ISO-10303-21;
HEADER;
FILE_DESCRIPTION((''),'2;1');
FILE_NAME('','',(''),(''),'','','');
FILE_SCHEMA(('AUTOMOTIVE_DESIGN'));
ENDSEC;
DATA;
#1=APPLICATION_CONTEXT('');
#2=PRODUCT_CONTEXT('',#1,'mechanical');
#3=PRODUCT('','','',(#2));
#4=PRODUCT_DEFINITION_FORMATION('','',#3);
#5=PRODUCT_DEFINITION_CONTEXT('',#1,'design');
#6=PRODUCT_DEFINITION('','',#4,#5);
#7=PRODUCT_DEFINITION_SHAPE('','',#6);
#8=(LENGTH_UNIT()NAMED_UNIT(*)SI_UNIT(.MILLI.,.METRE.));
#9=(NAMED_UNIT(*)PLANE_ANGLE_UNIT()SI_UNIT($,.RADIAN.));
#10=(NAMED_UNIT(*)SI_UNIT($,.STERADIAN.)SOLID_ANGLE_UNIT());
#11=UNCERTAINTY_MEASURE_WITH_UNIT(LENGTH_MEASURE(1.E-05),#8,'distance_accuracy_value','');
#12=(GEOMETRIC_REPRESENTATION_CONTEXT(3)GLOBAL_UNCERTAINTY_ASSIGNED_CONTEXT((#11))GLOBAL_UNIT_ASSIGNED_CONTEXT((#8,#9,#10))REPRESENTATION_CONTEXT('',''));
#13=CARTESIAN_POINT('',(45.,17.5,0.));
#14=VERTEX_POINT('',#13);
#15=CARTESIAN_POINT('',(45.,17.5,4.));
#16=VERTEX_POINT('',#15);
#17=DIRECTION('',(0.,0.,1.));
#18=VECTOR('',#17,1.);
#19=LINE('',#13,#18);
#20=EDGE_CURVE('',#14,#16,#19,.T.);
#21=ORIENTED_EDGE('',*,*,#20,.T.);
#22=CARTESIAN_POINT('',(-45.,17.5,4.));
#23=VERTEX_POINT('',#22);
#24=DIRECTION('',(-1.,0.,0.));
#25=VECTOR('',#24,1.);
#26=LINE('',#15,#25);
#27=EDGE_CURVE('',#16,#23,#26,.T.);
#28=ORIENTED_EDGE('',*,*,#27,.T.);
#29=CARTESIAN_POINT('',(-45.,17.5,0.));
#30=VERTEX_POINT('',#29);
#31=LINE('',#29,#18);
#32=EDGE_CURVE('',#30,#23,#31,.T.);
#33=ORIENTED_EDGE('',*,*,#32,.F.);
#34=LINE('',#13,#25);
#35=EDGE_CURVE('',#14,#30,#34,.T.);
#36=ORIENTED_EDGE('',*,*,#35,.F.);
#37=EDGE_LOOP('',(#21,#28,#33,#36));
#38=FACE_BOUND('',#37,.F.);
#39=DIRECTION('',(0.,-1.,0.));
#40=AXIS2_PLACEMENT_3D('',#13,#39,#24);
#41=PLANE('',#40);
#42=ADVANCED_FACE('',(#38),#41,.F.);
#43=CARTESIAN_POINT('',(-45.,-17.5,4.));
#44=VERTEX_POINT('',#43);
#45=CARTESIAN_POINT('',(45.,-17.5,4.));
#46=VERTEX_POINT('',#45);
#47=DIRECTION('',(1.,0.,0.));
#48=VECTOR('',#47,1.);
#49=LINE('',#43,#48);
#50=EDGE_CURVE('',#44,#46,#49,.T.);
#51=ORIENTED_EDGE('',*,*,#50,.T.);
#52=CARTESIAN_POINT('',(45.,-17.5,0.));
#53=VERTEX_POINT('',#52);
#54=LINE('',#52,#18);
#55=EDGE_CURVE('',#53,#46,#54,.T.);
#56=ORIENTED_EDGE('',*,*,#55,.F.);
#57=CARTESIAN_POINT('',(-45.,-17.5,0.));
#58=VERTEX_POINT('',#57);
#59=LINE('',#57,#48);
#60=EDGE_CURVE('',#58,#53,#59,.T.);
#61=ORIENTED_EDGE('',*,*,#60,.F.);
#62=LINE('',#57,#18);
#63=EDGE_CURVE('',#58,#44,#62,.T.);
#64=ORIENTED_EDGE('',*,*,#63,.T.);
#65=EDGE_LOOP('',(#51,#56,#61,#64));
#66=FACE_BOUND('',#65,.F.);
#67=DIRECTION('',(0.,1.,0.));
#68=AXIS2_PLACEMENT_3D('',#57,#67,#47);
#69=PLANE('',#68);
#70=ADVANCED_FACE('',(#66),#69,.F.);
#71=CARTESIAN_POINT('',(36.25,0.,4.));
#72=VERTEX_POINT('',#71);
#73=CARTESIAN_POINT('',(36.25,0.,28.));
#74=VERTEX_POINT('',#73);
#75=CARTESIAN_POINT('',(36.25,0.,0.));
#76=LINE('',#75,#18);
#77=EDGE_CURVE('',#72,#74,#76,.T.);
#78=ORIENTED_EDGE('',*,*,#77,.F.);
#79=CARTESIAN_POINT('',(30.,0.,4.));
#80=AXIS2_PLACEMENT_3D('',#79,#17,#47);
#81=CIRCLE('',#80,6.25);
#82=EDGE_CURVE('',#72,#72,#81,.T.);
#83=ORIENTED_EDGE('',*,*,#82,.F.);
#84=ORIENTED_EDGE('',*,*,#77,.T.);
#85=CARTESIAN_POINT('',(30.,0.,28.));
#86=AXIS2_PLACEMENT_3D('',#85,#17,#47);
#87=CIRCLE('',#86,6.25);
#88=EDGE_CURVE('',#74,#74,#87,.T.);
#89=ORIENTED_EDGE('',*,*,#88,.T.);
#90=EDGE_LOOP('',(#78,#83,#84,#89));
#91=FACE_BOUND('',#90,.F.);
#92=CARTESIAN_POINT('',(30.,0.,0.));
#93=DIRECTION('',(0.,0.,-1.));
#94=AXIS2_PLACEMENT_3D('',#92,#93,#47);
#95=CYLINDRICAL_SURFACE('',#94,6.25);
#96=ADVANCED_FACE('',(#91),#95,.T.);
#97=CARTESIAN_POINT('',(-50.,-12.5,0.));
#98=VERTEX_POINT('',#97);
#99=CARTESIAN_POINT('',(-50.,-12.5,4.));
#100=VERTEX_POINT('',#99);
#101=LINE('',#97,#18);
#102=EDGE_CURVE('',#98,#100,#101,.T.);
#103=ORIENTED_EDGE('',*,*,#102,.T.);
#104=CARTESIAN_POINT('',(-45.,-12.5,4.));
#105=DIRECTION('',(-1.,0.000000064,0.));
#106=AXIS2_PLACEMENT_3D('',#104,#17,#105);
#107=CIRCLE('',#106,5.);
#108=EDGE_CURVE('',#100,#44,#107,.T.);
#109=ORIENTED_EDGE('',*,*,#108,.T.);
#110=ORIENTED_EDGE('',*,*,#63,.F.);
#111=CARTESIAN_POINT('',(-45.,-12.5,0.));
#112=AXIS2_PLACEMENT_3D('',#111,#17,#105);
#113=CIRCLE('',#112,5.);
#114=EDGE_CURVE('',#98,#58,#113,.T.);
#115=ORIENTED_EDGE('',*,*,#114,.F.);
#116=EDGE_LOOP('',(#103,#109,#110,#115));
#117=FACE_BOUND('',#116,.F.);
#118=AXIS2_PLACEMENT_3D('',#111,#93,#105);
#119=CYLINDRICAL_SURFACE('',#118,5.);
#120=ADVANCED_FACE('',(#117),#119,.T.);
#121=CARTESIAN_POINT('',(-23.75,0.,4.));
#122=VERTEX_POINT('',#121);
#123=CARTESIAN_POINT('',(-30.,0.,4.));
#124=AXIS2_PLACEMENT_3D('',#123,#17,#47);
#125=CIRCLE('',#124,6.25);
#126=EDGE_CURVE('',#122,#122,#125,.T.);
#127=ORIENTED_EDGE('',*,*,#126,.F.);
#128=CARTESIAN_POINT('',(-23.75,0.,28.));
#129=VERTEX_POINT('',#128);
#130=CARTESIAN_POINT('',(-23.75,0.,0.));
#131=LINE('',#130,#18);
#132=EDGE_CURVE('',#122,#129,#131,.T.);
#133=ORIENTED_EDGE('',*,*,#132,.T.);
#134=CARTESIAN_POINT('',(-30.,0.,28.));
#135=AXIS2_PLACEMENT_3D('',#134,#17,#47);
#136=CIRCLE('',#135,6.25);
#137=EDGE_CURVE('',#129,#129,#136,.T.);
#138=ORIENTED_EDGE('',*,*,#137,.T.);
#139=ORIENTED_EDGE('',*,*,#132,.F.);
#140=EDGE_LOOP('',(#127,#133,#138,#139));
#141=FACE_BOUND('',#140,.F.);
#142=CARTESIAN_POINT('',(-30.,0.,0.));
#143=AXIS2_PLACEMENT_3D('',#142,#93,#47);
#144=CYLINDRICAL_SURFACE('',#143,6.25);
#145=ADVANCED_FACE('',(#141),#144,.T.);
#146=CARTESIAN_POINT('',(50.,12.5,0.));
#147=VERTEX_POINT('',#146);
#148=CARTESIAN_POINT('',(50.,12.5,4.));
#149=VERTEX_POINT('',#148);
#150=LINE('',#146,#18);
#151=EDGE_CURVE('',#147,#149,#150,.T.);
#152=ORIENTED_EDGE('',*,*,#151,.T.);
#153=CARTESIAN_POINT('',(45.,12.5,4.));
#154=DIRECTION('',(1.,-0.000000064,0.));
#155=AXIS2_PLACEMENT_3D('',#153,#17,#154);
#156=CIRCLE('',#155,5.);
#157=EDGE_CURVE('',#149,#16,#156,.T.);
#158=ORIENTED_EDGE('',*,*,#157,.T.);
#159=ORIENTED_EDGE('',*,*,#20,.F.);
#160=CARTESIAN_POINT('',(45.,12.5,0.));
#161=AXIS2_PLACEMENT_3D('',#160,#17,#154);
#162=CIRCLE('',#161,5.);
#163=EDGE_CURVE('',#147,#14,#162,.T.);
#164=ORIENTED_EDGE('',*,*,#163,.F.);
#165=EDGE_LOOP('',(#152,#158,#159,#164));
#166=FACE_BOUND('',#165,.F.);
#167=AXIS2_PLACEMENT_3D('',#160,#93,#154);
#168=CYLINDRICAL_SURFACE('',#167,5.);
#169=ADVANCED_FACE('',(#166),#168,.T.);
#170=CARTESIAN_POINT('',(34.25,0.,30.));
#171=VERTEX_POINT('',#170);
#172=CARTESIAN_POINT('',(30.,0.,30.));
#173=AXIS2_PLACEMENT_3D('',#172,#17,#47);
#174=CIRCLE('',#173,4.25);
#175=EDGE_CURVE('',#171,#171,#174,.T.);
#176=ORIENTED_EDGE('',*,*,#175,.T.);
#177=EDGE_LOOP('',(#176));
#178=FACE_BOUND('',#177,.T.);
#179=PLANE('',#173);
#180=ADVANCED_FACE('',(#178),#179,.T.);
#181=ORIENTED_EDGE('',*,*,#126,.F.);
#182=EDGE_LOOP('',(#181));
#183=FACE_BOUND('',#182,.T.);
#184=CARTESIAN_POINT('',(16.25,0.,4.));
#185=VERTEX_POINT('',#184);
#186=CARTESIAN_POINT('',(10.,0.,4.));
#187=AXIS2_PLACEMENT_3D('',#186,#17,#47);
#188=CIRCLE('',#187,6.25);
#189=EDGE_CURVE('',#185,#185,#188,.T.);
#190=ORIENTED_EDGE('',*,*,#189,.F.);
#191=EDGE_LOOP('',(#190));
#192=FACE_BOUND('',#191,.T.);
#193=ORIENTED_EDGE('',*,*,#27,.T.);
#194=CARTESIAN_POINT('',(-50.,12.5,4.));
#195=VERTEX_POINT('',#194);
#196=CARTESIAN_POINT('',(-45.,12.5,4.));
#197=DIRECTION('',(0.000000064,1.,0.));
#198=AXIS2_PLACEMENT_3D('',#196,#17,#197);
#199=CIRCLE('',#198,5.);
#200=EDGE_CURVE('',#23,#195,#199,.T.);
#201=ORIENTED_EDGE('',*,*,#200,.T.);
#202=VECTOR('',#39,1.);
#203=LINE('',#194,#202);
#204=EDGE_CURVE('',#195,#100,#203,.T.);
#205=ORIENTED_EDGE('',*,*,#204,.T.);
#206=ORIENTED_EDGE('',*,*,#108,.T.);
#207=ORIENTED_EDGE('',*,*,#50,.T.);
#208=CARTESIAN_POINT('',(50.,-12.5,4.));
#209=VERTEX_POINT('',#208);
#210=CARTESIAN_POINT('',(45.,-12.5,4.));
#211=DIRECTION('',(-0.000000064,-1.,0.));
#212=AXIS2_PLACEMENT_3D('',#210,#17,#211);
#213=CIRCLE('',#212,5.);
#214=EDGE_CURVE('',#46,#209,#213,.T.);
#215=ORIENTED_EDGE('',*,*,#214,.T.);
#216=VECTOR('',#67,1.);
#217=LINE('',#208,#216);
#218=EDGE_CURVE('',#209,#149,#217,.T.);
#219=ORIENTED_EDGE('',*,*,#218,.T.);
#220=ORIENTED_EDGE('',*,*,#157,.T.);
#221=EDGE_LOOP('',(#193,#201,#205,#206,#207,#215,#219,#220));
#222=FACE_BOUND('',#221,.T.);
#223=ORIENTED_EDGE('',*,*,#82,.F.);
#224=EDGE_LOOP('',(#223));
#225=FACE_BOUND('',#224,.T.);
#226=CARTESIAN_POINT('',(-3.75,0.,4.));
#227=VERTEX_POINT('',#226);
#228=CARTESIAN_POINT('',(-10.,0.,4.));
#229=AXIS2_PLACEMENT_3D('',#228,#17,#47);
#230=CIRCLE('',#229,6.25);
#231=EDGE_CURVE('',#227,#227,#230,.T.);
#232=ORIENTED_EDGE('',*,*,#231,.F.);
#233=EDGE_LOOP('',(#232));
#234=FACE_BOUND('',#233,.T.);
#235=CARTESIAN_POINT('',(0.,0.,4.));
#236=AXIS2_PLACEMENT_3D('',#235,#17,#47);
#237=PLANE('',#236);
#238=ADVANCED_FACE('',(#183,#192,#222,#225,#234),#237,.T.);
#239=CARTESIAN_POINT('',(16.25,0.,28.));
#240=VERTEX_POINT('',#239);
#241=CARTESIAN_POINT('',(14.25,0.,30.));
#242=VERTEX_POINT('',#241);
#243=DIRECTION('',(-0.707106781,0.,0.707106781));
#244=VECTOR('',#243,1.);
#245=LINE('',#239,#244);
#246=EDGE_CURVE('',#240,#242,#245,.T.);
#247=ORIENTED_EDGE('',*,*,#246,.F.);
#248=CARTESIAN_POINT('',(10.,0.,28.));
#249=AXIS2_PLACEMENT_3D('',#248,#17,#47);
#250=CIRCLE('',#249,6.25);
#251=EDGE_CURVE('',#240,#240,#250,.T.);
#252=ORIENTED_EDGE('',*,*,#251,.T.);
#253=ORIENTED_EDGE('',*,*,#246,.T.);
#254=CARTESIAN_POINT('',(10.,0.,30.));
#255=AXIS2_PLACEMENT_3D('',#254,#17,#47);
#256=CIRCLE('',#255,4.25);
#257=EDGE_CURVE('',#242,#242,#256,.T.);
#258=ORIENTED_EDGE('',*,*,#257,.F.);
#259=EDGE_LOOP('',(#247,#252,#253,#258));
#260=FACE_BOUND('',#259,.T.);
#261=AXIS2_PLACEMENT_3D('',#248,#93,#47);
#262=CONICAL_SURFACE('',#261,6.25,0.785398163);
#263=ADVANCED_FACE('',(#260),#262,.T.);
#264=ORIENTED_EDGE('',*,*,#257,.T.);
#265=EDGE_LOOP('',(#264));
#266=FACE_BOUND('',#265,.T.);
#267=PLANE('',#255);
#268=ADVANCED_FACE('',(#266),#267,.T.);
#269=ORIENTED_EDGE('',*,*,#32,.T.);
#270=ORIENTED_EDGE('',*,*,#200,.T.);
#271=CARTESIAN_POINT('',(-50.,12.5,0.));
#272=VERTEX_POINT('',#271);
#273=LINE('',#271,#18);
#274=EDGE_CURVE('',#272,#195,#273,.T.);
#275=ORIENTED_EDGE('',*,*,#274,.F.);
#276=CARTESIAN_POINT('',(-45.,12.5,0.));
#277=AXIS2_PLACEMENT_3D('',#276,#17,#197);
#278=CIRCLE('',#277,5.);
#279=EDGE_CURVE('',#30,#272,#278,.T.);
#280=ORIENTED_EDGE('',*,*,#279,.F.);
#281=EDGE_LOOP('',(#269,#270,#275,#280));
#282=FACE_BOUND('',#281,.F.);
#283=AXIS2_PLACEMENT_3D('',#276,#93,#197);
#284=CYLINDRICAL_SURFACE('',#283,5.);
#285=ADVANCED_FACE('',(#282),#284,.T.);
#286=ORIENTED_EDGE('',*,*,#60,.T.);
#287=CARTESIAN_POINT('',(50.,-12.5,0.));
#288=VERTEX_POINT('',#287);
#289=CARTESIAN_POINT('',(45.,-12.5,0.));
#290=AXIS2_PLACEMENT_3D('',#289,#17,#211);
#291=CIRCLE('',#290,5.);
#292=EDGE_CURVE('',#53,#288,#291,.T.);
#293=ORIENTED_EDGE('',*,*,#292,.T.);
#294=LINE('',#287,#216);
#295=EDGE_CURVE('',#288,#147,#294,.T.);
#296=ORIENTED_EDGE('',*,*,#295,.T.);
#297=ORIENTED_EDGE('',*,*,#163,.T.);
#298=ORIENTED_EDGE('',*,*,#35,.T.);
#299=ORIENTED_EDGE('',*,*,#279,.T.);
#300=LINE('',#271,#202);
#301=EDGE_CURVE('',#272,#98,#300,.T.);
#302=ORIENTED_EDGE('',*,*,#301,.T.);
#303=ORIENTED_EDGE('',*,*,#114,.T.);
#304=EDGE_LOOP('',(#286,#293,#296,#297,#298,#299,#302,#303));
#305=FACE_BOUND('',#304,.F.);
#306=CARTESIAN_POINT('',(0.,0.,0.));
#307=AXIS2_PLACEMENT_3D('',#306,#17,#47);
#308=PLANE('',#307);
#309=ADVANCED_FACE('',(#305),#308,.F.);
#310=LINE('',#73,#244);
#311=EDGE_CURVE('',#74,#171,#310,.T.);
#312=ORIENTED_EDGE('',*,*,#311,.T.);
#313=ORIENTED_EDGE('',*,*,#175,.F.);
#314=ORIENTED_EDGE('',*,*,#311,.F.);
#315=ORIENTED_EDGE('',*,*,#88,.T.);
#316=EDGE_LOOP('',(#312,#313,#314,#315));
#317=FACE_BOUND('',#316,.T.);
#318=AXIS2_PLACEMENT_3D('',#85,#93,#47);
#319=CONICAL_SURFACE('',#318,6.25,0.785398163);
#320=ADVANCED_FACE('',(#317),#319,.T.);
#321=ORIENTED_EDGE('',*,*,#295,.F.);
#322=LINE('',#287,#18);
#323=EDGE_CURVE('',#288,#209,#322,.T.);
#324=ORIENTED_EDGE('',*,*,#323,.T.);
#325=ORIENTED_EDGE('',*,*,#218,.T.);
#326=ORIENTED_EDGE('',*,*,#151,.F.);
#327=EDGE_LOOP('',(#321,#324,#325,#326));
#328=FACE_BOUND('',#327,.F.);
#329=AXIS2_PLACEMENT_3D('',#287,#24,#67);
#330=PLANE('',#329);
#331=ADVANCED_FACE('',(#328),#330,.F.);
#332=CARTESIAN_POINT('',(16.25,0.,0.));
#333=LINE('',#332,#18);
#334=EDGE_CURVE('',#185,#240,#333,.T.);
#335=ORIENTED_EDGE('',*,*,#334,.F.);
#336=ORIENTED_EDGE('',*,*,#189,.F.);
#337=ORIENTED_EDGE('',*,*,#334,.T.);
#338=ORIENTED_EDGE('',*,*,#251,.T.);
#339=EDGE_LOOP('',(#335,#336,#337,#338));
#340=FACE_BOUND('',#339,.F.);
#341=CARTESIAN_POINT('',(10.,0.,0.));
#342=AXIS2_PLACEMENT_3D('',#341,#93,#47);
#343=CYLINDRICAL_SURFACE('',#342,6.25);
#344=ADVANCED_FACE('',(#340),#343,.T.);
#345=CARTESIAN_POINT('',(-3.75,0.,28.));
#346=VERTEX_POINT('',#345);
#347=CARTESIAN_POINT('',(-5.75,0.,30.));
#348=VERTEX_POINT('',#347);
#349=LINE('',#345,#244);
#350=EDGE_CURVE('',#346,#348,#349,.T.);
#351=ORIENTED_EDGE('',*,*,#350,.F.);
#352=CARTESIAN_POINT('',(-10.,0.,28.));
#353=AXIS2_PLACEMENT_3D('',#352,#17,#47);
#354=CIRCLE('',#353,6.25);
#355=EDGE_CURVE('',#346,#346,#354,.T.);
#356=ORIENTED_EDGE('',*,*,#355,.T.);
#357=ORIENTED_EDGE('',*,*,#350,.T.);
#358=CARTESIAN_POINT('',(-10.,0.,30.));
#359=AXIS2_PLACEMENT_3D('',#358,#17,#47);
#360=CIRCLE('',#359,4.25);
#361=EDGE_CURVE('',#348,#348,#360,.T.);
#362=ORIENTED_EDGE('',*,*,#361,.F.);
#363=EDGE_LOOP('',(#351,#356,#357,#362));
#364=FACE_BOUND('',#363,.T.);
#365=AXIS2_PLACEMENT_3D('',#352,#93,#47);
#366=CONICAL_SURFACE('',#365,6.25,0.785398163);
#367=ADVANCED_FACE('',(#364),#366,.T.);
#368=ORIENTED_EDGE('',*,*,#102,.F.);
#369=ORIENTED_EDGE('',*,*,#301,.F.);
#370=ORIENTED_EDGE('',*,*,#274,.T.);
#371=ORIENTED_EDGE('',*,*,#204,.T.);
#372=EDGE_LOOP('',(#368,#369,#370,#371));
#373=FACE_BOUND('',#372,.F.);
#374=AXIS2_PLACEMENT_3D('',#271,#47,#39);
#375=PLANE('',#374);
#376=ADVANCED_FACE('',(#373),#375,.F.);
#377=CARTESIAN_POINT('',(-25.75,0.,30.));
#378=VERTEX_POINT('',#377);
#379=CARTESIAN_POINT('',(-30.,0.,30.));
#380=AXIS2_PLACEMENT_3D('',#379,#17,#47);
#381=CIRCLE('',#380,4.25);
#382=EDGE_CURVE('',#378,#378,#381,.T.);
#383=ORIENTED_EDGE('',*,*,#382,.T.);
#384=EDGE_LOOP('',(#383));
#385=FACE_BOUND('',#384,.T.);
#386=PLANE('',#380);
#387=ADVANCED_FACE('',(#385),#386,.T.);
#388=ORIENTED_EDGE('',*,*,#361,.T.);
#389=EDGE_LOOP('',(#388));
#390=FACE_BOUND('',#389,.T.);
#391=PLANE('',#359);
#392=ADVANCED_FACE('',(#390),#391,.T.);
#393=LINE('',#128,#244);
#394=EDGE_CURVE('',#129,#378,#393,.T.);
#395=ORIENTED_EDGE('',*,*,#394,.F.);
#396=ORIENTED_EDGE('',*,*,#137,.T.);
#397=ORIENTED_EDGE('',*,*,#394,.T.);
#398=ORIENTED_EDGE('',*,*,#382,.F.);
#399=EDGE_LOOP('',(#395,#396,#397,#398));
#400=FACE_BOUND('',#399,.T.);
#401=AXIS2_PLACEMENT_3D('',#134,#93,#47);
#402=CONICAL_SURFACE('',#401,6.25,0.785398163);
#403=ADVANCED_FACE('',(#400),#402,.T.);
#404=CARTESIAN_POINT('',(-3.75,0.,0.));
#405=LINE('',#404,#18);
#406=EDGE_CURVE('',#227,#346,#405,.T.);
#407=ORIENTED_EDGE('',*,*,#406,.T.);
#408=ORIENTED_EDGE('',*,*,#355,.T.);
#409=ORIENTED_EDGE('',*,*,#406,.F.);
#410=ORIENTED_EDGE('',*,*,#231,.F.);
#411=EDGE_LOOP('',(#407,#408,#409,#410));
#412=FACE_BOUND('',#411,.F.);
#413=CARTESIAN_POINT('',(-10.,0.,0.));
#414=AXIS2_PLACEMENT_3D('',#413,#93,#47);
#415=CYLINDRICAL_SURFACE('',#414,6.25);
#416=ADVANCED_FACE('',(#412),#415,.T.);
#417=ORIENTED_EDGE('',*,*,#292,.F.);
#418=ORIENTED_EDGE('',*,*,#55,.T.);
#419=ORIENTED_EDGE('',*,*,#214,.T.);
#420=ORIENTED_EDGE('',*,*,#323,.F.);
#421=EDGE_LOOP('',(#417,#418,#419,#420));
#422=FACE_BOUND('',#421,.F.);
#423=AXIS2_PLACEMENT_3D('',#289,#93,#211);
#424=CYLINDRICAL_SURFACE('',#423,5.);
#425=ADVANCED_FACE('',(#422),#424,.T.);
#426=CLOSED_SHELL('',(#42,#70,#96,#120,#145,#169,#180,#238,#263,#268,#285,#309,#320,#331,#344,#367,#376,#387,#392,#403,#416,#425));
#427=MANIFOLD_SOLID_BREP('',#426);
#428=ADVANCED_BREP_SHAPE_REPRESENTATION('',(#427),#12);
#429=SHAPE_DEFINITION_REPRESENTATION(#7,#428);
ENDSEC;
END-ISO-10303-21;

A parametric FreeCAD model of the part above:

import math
import FreeCAD as App
import Part
import Sketcher


def edges_at(feature, points):
    """Names of the edges that pass closest to the given points."""
    edges = feature.Shape.Edges
    near = lambda p: min(range(len(edges)), key=lambda i: edges[i].distToShape(Part.Vertex(*p))[0])
    return sorted({f"Edge{near(p) + 1}" for p in points})

doc = App.newDocument("Part")
body = doc.addObject("PartDesign::Body", "Body")
body.AllowCompound = True

sketch1 = body.newObject("Sketcher::SketchObject", "Sketch")
sketch1.AttachmentSupport = (doc.getObject("XY_Plane"), [""])
sketch1.MapMode = "FlatFace"
sketch1.addGeometry([
    Part.Circle(App.Vector(-30, 0, 0), App.Vector(0, 0, 1), 6),
    Part.Circle(App.Vector(-10, 0, 0), App.Vector(0, 0, 1), 6),
    Part.Circle(App.Vector(10, 0, 0), App.Vector(0, 0, 1), 6),
    Part.Circle(App.Vector(30, 0, 0), App.Vector(0, 0, 1), 6),
], False)
sketch1.addConstraint([
    Sketcher.Constraint("Equal", 0, 1),
    Sketcher.Constraint("Equal", 1, 2),
    Sketcher.Constraint("Equal", 2, 3),
    Sketcher.Constraint("Symmetric", 1, 3, 2, 3, -1, 1),
    Sketcher.Constraint("Symmetric", 0, 3, 3, 3, -1, 1),
    Sketcher.Constraint("PointOnObject", 0, 3, -1),
    Sketcher.Constraint("PointOnObject", 1, 3, -1),
    Sketcher.Constraint("Diameter", 0, 12.5),
    Sketcher.Constraint("DistanceX", 0, 3, -1, 1, 30.0),
    Sketcher.Constraint("DistanceX", 1, 3, -1, 1, 10.0),
])
pad1 = body.newObject("PartDesign::Pad", "Pad")
pad1.Profile = sketch1
pad1.Length = 30

sketch2 = body.newObject("Sketcher::SketchObject", "Sketch001")
sketch2.AttachmentSupport = (doc.getObject("XY_Plane"), [""])
sketch2.MapMode = "FlatFace"
sketch2.addGeometry([
    Part.ArcOfCircle(Part.Circle(App.Vector(45, 12.5, 0), App.Vector(0, 0, 1), 5), math.radians(0), math.radians(90)),
    Part.LineSegment(App.Vector(45, 17.5, 0), App.Vector(-45, 17.5, 0)),
    Part.ArcOfCircle(Part.Circle(App.Vector(-45, 12.5, 0), App.Vector(0, 0, 1), 5), math.radians(90), math.radians(180)),
    Part.LineSegment(App.Vector(-50, 12.5, 0), App.Vector(-50, -12.5, 0)),
    Part.ArcOfCircle(Part.Circle(App.Vector(-45, -12.5, 0), App.Vector(0, 0, 1), 5), math.radians(180), math.radians(270)),
    Part.LineSegment(App.Vector(-45, -17.5, 0), App.Vector(45, -17.5, 0)),
    Part.ArcOfCircle(Part.Circle(App.Vector(45, -12.5, 0), App.Vector(0, 0, 1), 5), math.radians(-90), math.radians(0)),
    Part.LineSegment(App.Vector(50, -12.5, 0), App.Vector(50, 12.5, 0)),
    Part.Circle(App.Vector(-30, 0, 0), App.Vector(0, 0, 1), 6.2),
    Part.Circle(App.Vector(-10, 0, 0), App.Vector(0, 0, 1), 6.2),
    Part.Circle(App.Vector(10, 0, 0), App.Vector(0, 0, 1), 6.2),
    Part.Circle(App.Vector(30, 0, 0), App.Vector(0, 0, 1), 6.2),
], False)
sketch2.addConstraint([
    Sketcher.Constraint("Tangent", 0, 2, 1, 1),
    Sketcher.Constraint("Tangent", 1, 2, 2, 1),
    Sketcher.Constraint("Tangent", 2, 2, 3, 1),
    Sketcher.Constraint("Tangent", 3, 2, 4, 1),
    Sketcher.Constraint("Tangent", 4, 2, 5, 1),
    Sketcher.Constraint("Tangent", 5, 2, 6, 1),
    Sketcher.Constraint("Tangent", 6, 2, 7, 1),
    Sketcher.Constraint("Tangent", 7, 2, 0, 1),
    Sketcher.Constraint("Horizontal", 1),
    Sketcher.Constraint("Vertical", 3),
    Sketcher.Constraint("Horizontal", 5),
    Sketcher.Constraint("Vertical", 7),
    Sketcher.Constraint("Equal", 0, 2),
    Sketcher.Constraint("Equal", 2, 4),
    Sketcher.Constraint("Equal", 4, 6),
    Sketcher.Constraint("Equal", 8, 9),
    Sketcher.Constraint("Equal", 9, 10),
    Sketcher.Constraint("Equal", 10, 11),
    Sketcher.Constraint("Symmetric", 0, 3, 4, 3, -1, 1),
    Sketcher.Constraint("Symmetric", 9, 3, 10, 3, -1, 1),
    Sketcher.Constraint("Symmetric", 8, 3, 11, 3, -1, 1),
    Sketcher.Constraint("PointOnObject", 8, 3, -1),
    Sketcher.Constraint("PointOnObject", 9, 3, -1),
    Sketcher.Constraint("Radius", 0, 5.0),
    Sketcher.Constraint("Diameter", 8, 12.5),
    Sketcher.Constraint("DistanceX", 1, 2, 1, 1, 90.0),
    Sketcher.Constraint("DistanceY", 3, 2, 3, 1, 25.0),
    Sketcher.Constraint("DistanceX", 8, 3, -1, 1, 30.0),
    Sketcher.Constraint("DistanceX", 9, 3, -1, 1, 10.0),
])
pad2 = body.newObject("PartDesign::Pad", "Pad001")
pad2.Profile = sketch2
pad2.Length = 4
doc.recompute()

chamfer = body.newObject("PartDesign::Chamfer", "Chamfer")
chamfer.Base = (pad2, edges_at(pad2, [
    (-36.25, 0, 30),
    (-16.25, 0, 30),
    (3.75, 0, 30),
    (23.75, 0, 30),
]))
chamfer.Size = 2

doc.recompute()
